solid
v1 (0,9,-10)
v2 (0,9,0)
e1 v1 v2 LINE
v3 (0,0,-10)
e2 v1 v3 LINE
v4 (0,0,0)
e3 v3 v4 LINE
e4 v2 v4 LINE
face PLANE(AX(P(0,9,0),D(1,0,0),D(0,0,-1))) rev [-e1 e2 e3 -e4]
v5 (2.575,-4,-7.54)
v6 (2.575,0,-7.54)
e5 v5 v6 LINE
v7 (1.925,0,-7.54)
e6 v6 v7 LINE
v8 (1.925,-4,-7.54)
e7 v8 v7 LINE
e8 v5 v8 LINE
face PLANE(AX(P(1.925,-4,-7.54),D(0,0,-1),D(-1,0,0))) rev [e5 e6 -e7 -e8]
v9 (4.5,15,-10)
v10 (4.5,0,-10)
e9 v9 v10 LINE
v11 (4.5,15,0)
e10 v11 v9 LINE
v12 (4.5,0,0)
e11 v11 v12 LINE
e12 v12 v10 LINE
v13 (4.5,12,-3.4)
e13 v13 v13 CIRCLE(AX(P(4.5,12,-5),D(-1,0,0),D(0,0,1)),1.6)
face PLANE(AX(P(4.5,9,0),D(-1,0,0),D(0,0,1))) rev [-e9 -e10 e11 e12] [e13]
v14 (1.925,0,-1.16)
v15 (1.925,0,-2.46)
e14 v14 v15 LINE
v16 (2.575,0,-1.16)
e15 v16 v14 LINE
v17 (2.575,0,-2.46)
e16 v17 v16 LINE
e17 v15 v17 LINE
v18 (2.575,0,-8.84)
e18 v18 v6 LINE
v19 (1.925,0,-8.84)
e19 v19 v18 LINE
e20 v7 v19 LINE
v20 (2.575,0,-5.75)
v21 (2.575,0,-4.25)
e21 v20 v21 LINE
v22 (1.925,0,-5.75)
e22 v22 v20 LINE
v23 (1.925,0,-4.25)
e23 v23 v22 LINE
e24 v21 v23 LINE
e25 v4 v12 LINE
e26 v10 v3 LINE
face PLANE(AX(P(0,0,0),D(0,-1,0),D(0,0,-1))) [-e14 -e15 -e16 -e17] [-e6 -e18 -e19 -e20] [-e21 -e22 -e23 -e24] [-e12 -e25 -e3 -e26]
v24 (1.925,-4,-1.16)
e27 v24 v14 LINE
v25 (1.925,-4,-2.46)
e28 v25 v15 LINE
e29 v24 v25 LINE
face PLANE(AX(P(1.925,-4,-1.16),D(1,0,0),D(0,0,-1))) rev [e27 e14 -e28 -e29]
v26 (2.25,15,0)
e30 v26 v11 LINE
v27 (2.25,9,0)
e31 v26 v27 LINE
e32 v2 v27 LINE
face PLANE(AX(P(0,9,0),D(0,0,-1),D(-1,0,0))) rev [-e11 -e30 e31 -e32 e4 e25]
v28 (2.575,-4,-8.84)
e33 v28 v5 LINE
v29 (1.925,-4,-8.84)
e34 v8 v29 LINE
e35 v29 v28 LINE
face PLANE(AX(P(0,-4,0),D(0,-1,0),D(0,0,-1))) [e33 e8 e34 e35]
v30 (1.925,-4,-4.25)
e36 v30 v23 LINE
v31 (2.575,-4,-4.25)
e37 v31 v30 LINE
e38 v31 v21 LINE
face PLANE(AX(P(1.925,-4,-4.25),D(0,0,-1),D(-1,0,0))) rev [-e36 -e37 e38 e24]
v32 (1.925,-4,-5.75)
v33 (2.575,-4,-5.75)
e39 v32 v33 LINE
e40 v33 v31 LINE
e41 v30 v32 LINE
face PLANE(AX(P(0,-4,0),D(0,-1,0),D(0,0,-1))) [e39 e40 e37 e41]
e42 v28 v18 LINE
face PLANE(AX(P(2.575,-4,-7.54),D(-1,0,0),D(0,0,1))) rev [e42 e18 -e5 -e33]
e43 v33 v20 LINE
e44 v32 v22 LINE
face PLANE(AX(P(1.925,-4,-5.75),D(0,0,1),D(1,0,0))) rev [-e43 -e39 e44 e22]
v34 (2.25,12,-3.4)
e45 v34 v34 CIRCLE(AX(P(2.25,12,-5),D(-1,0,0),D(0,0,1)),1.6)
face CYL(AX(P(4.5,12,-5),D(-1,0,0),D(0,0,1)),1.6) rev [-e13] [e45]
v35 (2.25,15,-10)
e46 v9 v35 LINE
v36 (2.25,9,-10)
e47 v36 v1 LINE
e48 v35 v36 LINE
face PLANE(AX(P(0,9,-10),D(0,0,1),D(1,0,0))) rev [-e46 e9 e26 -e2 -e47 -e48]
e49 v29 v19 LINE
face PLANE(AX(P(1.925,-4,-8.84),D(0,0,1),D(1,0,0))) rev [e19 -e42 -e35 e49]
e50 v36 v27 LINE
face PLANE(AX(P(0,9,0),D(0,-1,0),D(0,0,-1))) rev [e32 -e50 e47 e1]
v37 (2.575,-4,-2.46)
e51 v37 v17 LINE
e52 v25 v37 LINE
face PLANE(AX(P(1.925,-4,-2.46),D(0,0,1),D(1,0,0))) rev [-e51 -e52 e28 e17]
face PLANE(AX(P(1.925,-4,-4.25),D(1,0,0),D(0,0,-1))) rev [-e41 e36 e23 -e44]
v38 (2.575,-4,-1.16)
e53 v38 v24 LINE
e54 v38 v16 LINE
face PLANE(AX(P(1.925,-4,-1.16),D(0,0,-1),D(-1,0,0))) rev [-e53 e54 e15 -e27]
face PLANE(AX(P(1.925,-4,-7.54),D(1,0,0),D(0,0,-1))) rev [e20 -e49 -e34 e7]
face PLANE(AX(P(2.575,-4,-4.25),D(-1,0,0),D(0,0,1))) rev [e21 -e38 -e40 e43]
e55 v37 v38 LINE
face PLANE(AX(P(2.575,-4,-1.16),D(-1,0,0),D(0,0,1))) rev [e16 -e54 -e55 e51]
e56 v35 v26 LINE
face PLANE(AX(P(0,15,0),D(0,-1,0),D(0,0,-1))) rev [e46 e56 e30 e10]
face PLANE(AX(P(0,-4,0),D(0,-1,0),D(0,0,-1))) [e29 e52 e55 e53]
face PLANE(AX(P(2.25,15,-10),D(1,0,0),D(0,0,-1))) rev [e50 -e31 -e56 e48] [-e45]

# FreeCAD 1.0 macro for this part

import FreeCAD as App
import Part
import Sketcher
Q = App.Units.Quantity

doc = App.newDocument("Part")
body = doc.addObject("PartDesign::Body", "Body")

# Sketch on XZ plane
sketch1 = body.newObject("Sketcher::SketchObject", "Sketch")
sketch1.AttachmentSupport = (doc.getObject("XZ_Plane"), [""])
sketch1.MapMode = "FlatFace"
sketch1.addGeometry([
    Part.LineSegment(App.Vector(0, -10, 0), App.Vector(0, 0, 0)),
    Part.LineSegment(App.Vector(0, 0, 0), App.Vector(4.5, 0, 0)),
    Part.LineSegment(App.Vector(4.5, 0, 0), App.Vector(4.5, -10, 0)),
    Part.LineSegment(App.Vector(4.5, -10, 0), App.Vector(0, -10, 0)),
], False)
sketch1.addConstraint([
    Sketcher.Constraint("Coincident", 0, 2, 1, 1),
    Sketcher.Constraint("Coincident", 1, 2, 2, 1),
    Sketcher.Constraint("Coincident", 2, 2, 3, 1),
    Sketcher.Constraint("Coincident", 3, 2, 0, 1),
    Sketcher.Constraint("Vertical", 0),
    Sketcher.Constraint("Horizontal", 1),
    Sketcher.Constraint("Vertical", 2),
    Sketcher.Constraint("Horizontal", 3),
    Sketcher.Constraint("Coincident", 0, 2, -1, 1),
    Sketcher.Constraint("DistanceY", 0, 1, 0, 2, Q("10 mm")),
    Sketcher.Constraint("DistanceX", 1, 1, 1, 2, Q("4.5 mm")),
])
pad1 = body.newObject("PartDesign::Pad", "Pad")
pad1.Profile = sketch1
pad1.Length = 9
pad1.Reversed = True

# Sketch on XZ plane
sketch2 = body.newObject("Sketcher::SketchObject", "Sketch001")
sketch2.AttachmentSupport = (doc.getObject("XZ_Plane"), [""])
sketch2.MapMode = "FlatFace"
sketch2.AttachmentOffset = App.Placement(App.Vector(0, 0, -9), App.Rotation())
sketch2.addGeometry([
    Part.LineSegment(App.Vector(2.2, -10, 0), App.Vector(2.2, 0, 0)),
    Part.LineSegment(App.Vector(2.2, 0, 0), App.Vector(4.5, 0, 0)),
    Part.LineSegment(App.Vector(4.5, 0, 0), App.Vector(4.5, -10, 0)),
    Part.LineSegment(App.Vector(4.5, -10, 0), App.Vector(2.2, -10, 0)),
], False)
sketch2.addConstraint([
    Sketcher.Constraint("Coincident", 0, 2, 1, 1),
    Sketcher.Constraint("Coincident", 1, 2, 2, 1),
    Sketcher.Constraint("Coincident", 2, 2, 3, 1),
    Sketcher.Constraint("Coincident", 3, 2, 0, 1),
    Sketcher.Constraint("Vertical", 0),
    Sketcher.Constraint("Horizontal", 1),
    Sketcher.Constraint("Vertical", 2),
    Sketcher.Constraint("Horizontal", 3),
    Sketcher.Constraint("PointOnObject", 0, 2, -1),
    Sketcher.Constraint("DistanceY", 0, 1, 0, 2, Q("10 mm")),
    Sketcher.Constraint("DistanceX", 1, 1, 1, 2, Q("2.25 mm")),
    Sketcher.Constraint("DistanceX", -1, 1, 1, 2, Q("4.5 mm")),
])
pad2 = body.newObject("PartDesign::Pad", "Pad001")
pad2.Profile = sketch2
pad2.Length = 6
pad2.Reversed = True

# Sketch on YZ plane
sketch3 = body.newObject("Sketcher::SketchObject", "Sketch002")
sketch3.AttachmentSupport = (doc.getObject("YZ_Plane"), [""])
sketch3.MapMode = "FlatFace"
sketch3.AttachmentOffset = App.Placement(App.Vector(0, 0, 2.25), App.Rotation())
sketch3.addGeometry(Part.Circle(App.Vector(12, -5, 0), App.Vector(0, 0, 1), 1.6), False)
sketch3.addConstraint([
    Sketcher.Constraint("Diameter", 0, Q("3.2 mm")),
    Sketcher.Constraint("DistanceX", -1, 1, 0, 3, Q("12 mm")),
    Sketcher.Constraint("DistanceY", 0, 3, -1, 1, Q("5 mm")),
])
pocket1 = body.newObject("PartDesign::Pocket", "Pocket")
pocket1.Profile = sketch3
pocket1.Type = "ThroughAll"
pocket1.Reversed = True

# Sketch on XZ plane
sketch4 = body.newObject("Sketcher::SketchObject", "Sketch003")
sketch4.AttachmentSupport = (doc.getObject("XZ_Plane"), [""])
sketch4.MapMode = "FlatFace"
sketch4.addGeometry([
    Part.LineSegment(App.Vector(1.9, -1.2, 0), App.Vector(1.9, -2.5, 0)),  # 0
    Part.LineSegment(App.Vector(1.9, -2.5, 0), App.Vector(2.6, -2.5, 0)),  # 1
    Part.LineSegment(App.Vector(2.6, -2.5, 0), App.Vector(2.6, -1.2, 0)),  # 2
    Part.LineSegment(App.Vector(2.6, -1.2, 0), App.Vector(1.9, -1.2, 0)),  # 3
    Part.LineSegment(App.Vector(1.9, -4.2, 0), App.Vector(1.9, -5.8, 0)),  # 4
    Part.LineSegment(App.Vector(1.9, -5.8, 0), App.Vector(2.6, -5.8, 0)),  # 5
    Part.LineSegment(App.Vector(2.6, -5.8, 0), App.Vector(2.6, -4.2, 0)),  # 6
    Part.LineSegment(App.Vector(2.6, -4.2, 0), App.Vector(1.9, -4.2, 0)),  # 7
    Part.LineSegment(App.Vector(1.9, -7.5, 0), App.Vector(1.9, -8.8, 0)),  # 8
    Part.LineSegment(App.Vector(1.9, -8.8, 0), App.Vector(2.6, -8.8, 0)),  # 9
    Part.LineSegment(App.Vector(2.6, -8.8, 0), App.Vector(2.6, -7.5, 0)),  # 10
    Part.LineSegment(App.Vector(2.6, -7.5, 0), App.Vector(1.9, -7.5, 0)),  # 11
], False)
sketch4.addConstraint([
    Sketcher.Constraint("Coincident", 0, 2, 1, 1),
    Sketcher.Constraint("Coincident", 1, 2, 2, 1),
    Sketcher.Constraint("Coincident", 2, 2, 3, 1),
    Sketcher.Constraint("Coincident", 3, 2, 0, 1),
    Sketcher.Constraint("Coincident", 4, 2, 5, 1),
    Sketcher.Constraint("Coincident", 5, 2, 6, 1),
    Sketcher.Constraint("Coincident", 6, 2, 7, 1),
    Sketcher.Constraint("Coincident", 7, 2, 4, 1),
    Sketcher.Constraint("Coincident", 8, 2, 9, 1),
    Sketcher.Constraint("Coincident", 9, 2, 10, 1),
    Sketcher.Constraint("Coincident", 10, 2, 11, 1),
    Sketcher.Constraint("Coincident", 11, 2, 8, 1),
    Sketcher.Constraint("Vertical", 0),
    Sketcher.Constraint("Horizontal", 1),
    Sketcher.Constraint("Vertical", 2),
    Sketcher.Constraint("Horizontal", 3),
    Sketcher.Constraint("Vertical", 4),
    Sketcher.Constraint("Horizontal", 5),
    Sketcher.Constraint("Vertical", 6),
    Sketcher.Constraint("Horizontal", 7),
    Sketcher.Constraint("Vertical", 8),
    Sketcher.Constraint("Horizontal", 9),
    Sketcher.Constraint("Vertical", 10),
    Sketcher.Constraint("Horizontal", 11),
    Sketcher.Constraint("Vertical", 3, 2, 4, 2),
    Sketcher.Constraint("Vertical", 2, 2, 5, 2),
    Sketcher.Constraint("Vertical", 7, 2, 8, 2),
    Sketcher.Constraint("Vertical", 6, 2, 9, 2),
    Sketcher.Constraint("Equal", 2, 8),
    Sketcher.Constraint("DistanceY", 0, 2, 0, 1, Q("1.3 mm")),
    Sketcher.Constraint("DistanceY", 4, 2, 4, 1, Q("1.5 mm")),
    Sketcher.Constraint("DistanceX", 1, 1, 1, 2, Q("0.65 mm")),
    Sketcher.Constraint("DistanceY", 0, 2, -1, 1, Q("2.46 mm")),
    Sketcher.Constraint("DistanceY", 4, 2, -1, 1, Q("5.75 mm")),
    Sketcher.Constraint("DistanceY", 8, 2, -1, 1, Q("8.84 mm")),
    Sketcher.Constraint("DistanceX", -1, 1, 0, 2, Q("1.925 mm")),
])
pad3 = body.newObject("PartDesign::Pad", "Pad002")
pad3.Profile = sketch4
pad3.Length = 4

doc.recompute()
